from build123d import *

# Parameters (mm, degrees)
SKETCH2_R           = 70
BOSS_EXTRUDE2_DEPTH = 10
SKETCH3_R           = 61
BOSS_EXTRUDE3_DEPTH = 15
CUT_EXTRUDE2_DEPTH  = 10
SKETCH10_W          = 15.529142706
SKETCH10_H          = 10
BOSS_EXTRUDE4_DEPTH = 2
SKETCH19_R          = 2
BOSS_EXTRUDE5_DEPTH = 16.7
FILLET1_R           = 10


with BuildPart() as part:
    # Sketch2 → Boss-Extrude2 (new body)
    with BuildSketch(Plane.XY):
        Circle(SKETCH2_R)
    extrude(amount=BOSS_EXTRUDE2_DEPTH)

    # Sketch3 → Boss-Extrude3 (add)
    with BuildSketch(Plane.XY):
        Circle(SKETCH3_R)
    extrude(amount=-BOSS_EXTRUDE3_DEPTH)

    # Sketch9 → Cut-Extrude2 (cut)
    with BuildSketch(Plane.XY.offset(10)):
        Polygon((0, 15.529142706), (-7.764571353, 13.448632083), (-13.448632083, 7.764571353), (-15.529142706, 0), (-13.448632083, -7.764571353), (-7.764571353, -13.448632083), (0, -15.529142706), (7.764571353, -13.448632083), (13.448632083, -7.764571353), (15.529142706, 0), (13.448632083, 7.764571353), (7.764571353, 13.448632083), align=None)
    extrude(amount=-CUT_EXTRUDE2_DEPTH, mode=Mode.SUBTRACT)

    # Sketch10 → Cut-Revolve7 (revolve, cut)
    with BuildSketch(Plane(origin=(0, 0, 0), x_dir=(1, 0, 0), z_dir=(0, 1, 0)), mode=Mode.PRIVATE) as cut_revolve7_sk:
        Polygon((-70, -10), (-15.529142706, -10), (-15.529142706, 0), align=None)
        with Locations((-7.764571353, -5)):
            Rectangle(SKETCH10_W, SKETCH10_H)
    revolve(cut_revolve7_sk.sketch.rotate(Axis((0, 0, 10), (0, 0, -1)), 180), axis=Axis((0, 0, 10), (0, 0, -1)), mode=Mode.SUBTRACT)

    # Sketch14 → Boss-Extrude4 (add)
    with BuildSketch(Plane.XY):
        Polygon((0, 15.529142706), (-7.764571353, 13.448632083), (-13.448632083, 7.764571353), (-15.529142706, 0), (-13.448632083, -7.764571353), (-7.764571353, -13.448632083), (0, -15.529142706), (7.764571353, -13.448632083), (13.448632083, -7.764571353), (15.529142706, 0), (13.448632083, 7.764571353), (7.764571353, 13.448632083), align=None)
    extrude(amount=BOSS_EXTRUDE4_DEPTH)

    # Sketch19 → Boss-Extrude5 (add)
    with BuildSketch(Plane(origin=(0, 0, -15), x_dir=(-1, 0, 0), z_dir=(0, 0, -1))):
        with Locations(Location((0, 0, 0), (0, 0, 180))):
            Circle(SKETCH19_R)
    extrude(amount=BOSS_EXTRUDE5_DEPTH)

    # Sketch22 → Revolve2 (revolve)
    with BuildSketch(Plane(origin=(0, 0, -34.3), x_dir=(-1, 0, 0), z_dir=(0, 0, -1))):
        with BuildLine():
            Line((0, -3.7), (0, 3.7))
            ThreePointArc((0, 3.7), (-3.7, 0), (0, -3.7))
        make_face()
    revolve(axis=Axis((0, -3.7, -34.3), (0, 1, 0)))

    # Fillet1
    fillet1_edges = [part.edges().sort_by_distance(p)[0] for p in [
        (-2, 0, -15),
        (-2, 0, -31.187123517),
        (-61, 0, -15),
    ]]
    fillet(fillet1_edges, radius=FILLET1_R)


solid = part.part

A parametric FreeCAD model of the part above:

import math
import FreeCAD as App
import Part
import Sketcher
Q = App.Units.Quantity


def edges_at(feature, points):
    """Names of the edges that pass closest to the given points."""
    edges = feature.Shape.Edges
    near = lambda p: min(range(len(edges)), key=lambda i: edges[i].distToShape(Part.Vertex(*p))[0])
    return sorted({f"Edge{near(p) + 1}" for p in points})

doc = App.newDocument("Part")
body = doc.addObject("PartDesign::Body", "Body")

# Sketch on XY plane
sketch1 = body.newObject("Sketcher::SketchObject", "Sketch")
sketch1.AttachmentSupport = (doc.getObject("XY_Plane"), [""])
sketch1.MapMode = "FlatFace"
sketch1.addGeometry(Part.Circle(App.Vector(0, 0, 0), App.Vector(0, 0, 1), 70), False)
sketch1.addConstraint([
    Sketcher.Constraint("Coincident", 0, 3, -1, 1),
    Sketcher.Constraint("Diameter", 0, 140.0),
])
pad1 = body.newObject("PartDesign::Pad", "Pad")
pad1.Profile = sketch1
pad1.Length = 10

# Sketch on XY plane
sketch2 = body.newObject("Sketcher::SketchObject", "Sketch001")
sketch2.AttachmentSupport = (doc.getObject("XY_Plane"), [""])
sketch2.MapMode = "FlatFace"
sketch2.addGeometry(Part.Circle(App.Vector(0, 0, 0), App.Vector(0, 0, 1), 61), False)
sketch2.addConstraint([
    Sketcher.Constraint("Coincident", 0, 3, -1, 1),
    Sketcher.Constraint("Diameter", 0, 122.0),
])
pad2 = body.newObject("PartDesign::Pad", "Pad001")
pad2.Profile = sketch2
pad2.Length = 15
pad2.Reversed = True

# Sketch on XY plane
sketch3 = body.newObject("Sketcher::SketchObject", "Sketch002")
sketch3.AttachmentSupport = (doc.getObject("XY_Plane"), [""])
sketch3.MapMode = "FlatFace"
sketch3.AttachmentOffset = App.Placement(App.Vector(0, 0, 10), App.Rotation())
sketch3.addGeometry([
    Part.LineSegment(App.Vector(0, 16, 0), App.Vector(-8, 13, 0)),  # 0
    Part.LineSegment(App.Vector(-8, 13, 0), App.Vector(-13, 8, 0)),  # 1
    Part.LineSegment(App.Vector(-13, 8, 0), App.Vector(-16, 0, 0)),  # 2
    Part.LineSegment(App.Vector(-16, 0, 0), App.Vector(-13, -8, 0)),  # 3
    Part.LineSegment(App.Vector(-13, -8, 0), App.Vector(-8, -13, 0)),  # 4
    Part.LineSegment(App.Vector(-8, -13, 0), App.Vector(0, -16, 0)),  # 5
    Part.LineSegment(App.Vector(0, -16, 0), App.Vector(8, -13, 0)),  # 6
    Part.LineSegment(App.Vector(8, -13, 0), App.Vector(13, -8, 0)),  # 7
    Part.LineSegment(App.Vector(13, -8, 0), App.Vector(16, 0, 0)),  # 8
    Part.LineSegment(App.Vector(16, 0, 0), App.Vector(13, 8, 0)),  # 9
    Part.LineSegment(App.Vector(13, 8, 0), App.Vector(8, 13, 0)),  # 10
    Part.LineSegment(App.Vector(8, 13, 0), App.Vector(0, 16, 0)),  # 11
], False)
sketch3.addConstraint([
    Sketcher.Constraint("Coincident", 0, 2, 1, 1),
    Sketcher.Constraint("Coincident", 1, 2, 2, 1),
    Sketcher.Constraint("Coincident", 2, 2, 3, 1),
    Sketcher.Constraint("Coincident", 3, 2, 4, 1),
    Sketcher.Constraint("Coincident", 4, 2, 5, 1),
    Sketcher.Constraint("Coincident", 5, 2, 6, 1),
    Sketcher.Constraint("Coincident", 6, 2, 7, 1),
    Sketcher.Constraint("Coincident", 7, 2, 8, 1),
    Sketcher.Constraint("Coincident", 8, 2, 9, 1),
    Sketcher.Constraint("Coincident", 9, 2, 10, 1),
    Sketcher.Constraint("Coincident", 10, 2, 11, 1),
    Sketcher.Constraint("Coincident", 11, 2, 0, 1),
    Sketcher.Constraint("Symmetric", 0, 2, 6, 2, -1, 1),
    Sketcher.Constraint("Symmetric", 1, 2, 7, 2, -1, 1),
    Sketcher.Constraint("Symmetric", 2, 2, 8, 2, -1, 1),
    Sketcher.Constraint("Symmetric", 3, 2, 9, 2, -1, 1),
    Sketcher.Constraint("Symmetric", 4, 2, 10, 2, -1, 1),
    Sketcher.Constraint("Symmetric", 5, 2, 11, 2, -1, 1),
    Sketcher.Constraint("Symmetric", 4, 2, 6, 2, -2),
    Sketcher.Constraint("Symmetric", 3, 2, 7, 2, -2),
    Sketcher.Constraint("PointOnObject", 2, 2, -1),
    Sketcher.Constraint("PointOnObject", 5, 2, -2),
    Sketcher.Constraint("Perpendicular", 0, 3),
    Sketcher.Constraint("Perpendicular", 1, 4),
    Sketcher.Constraint("Equal", 0, 1),
    Sketcher.Constraint("Equal", 1, 2),
    Sketcher.Constraint("Angle", 0, Q("-165 deg")),
    Sketcher.Constraint("DistanceX", 0, 2, -1, 1, 7.764571),
])
pocket1 = body.newObject("PartDesign::Pocket", "Pocket")
pocket1.Profile = sketch3
pocket1.Length = 10

# Sketch on XZ plane
sketch4 = body.newObject("Sketcher::SketchObject", "Sketch003")
sketch4.AttachmentSupport = (doc.getObject("XZ_Plane"), [""])
sketch4.MapMode = "FlatFace"
sketch4.addGeometry([
    Part.LineSegment(App.Vector(-70, 10, 0), App.Vector(0, 10, 0)),
    Part.LineSegment(App.Vector(0, 10, 0), App.Vector(0, 0, 0)),
    Part.LineSegment(App.Vector(0, 0, 0), App.Vector(-16, 0, 0)),
    Part.LineSegment(App.Vector(-16, 0, 0), App.Vector(-70, 10, 0)),
], False)
sketch4.addConstraint([
    Sketcher.Constraint("Coincident", 0, 2, 1, 1),
    Sketcher.Constraint("Coincident", 1, 2, 2, 1),
    Sketcher.Constraint("Coincident", 2, 2, 3, 1),
    Sketcher.Constraint("Coincident", 3, 2, 0, 1),
    Sketcher.Constraint("Horizontal", 0),
    Sketcher.Constraint("Vertical", 1),
    Sketcher.Constraint("Horizontal", 2),
    Sketcher.Constraint("Coincident", 1, 2, -1, 1),
    Sketcher.Constraint("DistanceX", 0, 1, 0, 2, 70.0),
    Sketcher.Constraint("DistanceY", 1, 2, 1, 1, 10.0),
    Sketcher.Constraint("DistanceX", 2, 2, 2, 1, 15.529143),
])
groove = body.newObject("PartDesign::Groove", "Groove")
groove.Profile = sketch4
groove.ReferenceAxis = (sketch4, ["V_Axis"])
groove.Angle = 360

# Sketch on XY plane
sketch5 = body.newObject("Sketcher::SketchObject", "Sketch004")
sketch5.AttachmentSupport = (doc.getObject("XY_Plane"), [""])
sketch5.MapMode = "FlatFace"
sketch5.addGeometry([
    Part.LineSegment(App.Vector(0, 16, 0), App.Vector(-8, 13, 0)),  # 0
    Part.LineSegment(App.Vector(-8, 13, 0), App.Vector(-13, 8, 0)),  # 1
    Part.LineSegment(App.Vector(-13, 8, 0), App.Vector(-16, 0, 0)),  # 2
    Part.LineSegment(App.Vector(-16, 0, 0), App.Vector(-13, -8, 0)),  # 3
    Part.LineSegment(App.Vector(-13, -8, 0), App.Vector(-8, -13, 0)),  # 4
    Part.LineSegment(App.Vector(-8, -13, 0), App.Vector(0, -16, 0)),  # 5
    Part.LineSegment(App.Vector(0, -16, 0), App.Vector(8, -13, 0)),  # 6
    Part.LineSegment(App.Vector(8, -13, 0), App.Vector(13, -8, 0)),  # 7
    Part.LineSegment(App.Vector(13, -8, 0), App.Vector(16, 0, 0)),  # 8
    Part.LineSegment(App.Vector(16, 0, 0), App.Vector(13, 8, 0)),  # 9
    Part.LineSegment(App.Vector(13, 8, 0), App.Vector(8, 13, 0)),  # 10
    Part.LineSegment(App.Vector(8, 13, 0), App.Vector(0, 16, 0)),  # 11
], False)
sketch5.addConstraint([
    Sketcher.Constraint("Coincident", 0, 2, 1, 1),
    Sketcher.Constraint("Coincident", 1, 2, 2, 1),
    Sketcher.Constraint("Coincident", 2, 2, 3, 1),
    Sketcher.Constraint("Coincident", 3, 2, 4, 1),
    Sketcher.Constraint("Coincident", 4, 2, 5, 1),
    Sketcher.Constraint("Coincident", 5, 2, 6, 1),
    Sketcher.Constraint("Coincident", 6, 2, 7, 1),
    Sketcher.Constraint("Coincident", 7, 2, 8, 1),
    Sketcher.Constraint("Coincident", 8, 2, 9, 1),
    Sketcher.Constraint("Coincident", 9, 2, 10, 1),
    Sketcher.Constraint("Coincident", 10, 2, 11, 1),
    Sketcher.Constraint("Coincident", 11, 2, 0, 1),
    Sketcher.Constraint("Symmetric", 0, 2, 6, 2, -1, 1),
    Sketcher.Constraint("Symmetric", 1, 2, 7, 2, -1, 1),
    Sketcher.Constraint("Symmetric", 2, 2, 8, 2, -1, 1),
    Sketcher.Constraint("Symmetric", 3, 2, 9, 2, -1, 1),
    Sketcher.Constraint("Symmetric", 4, 2, 10, 2, -1, 1),
    Sketcher.Constraint("Symmetric", 5, 2, 11, 2, -1, 1),
    Sketcher.Constraint("Symmetric", 4, 2, 6, 2, -2),
    Sketcher.Constraint("Symmetric", 3, 2, 7, 2, -2),
    Sketcher.Constraint("PointOnObject", 2, 2, -1),
    Sketcher.Constraint("PointOnObject", 5, 2, -2),
    Sketcher.Constraint("Perpendicular", 0, 3),
    Sketcher.Constraint("Perpendicular", 1, 4),
    Sketcher.Constraint("Equal", 0, 1),
    Sketcher.Constraint("Equal", 1, 2),
    Sketcher.Constraint("Angle", 0, Q("-165 deg")),
    Sketcher.Constraint("DistanceX", 0, 2, -1, 1, 7.764571),
])
pad3 = body.newObject("PartDesign::Pad", "Pad002")
pad3.Profile = sketch5
pad3.Length = 2

# Sketch on XY plane
sketch6 = body.newObject("Sketcher::SketchObject", "Sketch005")
sketch6.AttachmentSupport = (doc.getObject("XY_Plane"), [""])
sketch6.MapMode = "FlatFace"
sketch6.AttachmentOffset = App.Placement(App.Vector(0, 0, -15), App.Rotation())
sketch6.addGeometry(Part.Circle(App.Vector(0, 0, 0), App.Vector(0, 0, 1), 2), False)
sketch6.addConstraint([
    Sketcher.Constraint("Coincident", 0, 3, -1, 1),
    Sketcher.Constraint("Diameter", 0, 4.0),
])
pad4 = body.newObject("PartDesign::Pad", "Pad003")
pad4.Profile = sketch6
pad4.Length = 16.7
pad4.Reversed = True

# Sketch on XY plane
sketch7 = body.newObject("Sketcher::SketchObject", "Sketch006")
sketch7.AttachmentSupport = (doc.getObject("XY_Plane"), [""])
sketch7.MapMode = "FlatFace"
sketch7.AttachmentOffset = App.Placement(App.Vector(0, 0, -34.3), App.Rotation())
sketch7.addGeometry([
    Part.LineSegment(App.Vector(0, -3.7, 0), App.Vector(0, 3.7, 0)),
    Part.ArcOfCircle(Part.Circle(App.Vector(0, 0, 0), App.Vector(0, 0, 1), 3.7), math.radians(-90), math.radians(90)),
], False)
sketch7.addConstraint([
    Sketcher.Constraint("Coincident", 0, 1, 1, 1),
    Sketcher.Constraint("Coincident", 1, 2, 0, 2),
    Sketcher.Constraint("Vertical", 0),
    Sketcher.Constraint("Coincident", 1, 3, -1, 1),
    Sketcher.Constraint("PointOnObject", 0, 1, -2),
    Sketcher.Constraint("Radius", 1, 3.7),
])
revolution = body.newObject("PartDesign::Revolution", "Revolution")
revolution.Profile = sketch7
revolution.ReferenceAxis = (sketch7, ["V_Axis"])
revolution.Angle = 360
doc.recompute()

fillet = body.newObject("PartDesign::Fillet", "Fillet")
fillet.Base = (revolution, edges_at(revolution, [(-2, 0, -15), (-2, 0, -31.187), (-61, 0, -15)]))
fillet.Radius = 10

doc.recompute()
